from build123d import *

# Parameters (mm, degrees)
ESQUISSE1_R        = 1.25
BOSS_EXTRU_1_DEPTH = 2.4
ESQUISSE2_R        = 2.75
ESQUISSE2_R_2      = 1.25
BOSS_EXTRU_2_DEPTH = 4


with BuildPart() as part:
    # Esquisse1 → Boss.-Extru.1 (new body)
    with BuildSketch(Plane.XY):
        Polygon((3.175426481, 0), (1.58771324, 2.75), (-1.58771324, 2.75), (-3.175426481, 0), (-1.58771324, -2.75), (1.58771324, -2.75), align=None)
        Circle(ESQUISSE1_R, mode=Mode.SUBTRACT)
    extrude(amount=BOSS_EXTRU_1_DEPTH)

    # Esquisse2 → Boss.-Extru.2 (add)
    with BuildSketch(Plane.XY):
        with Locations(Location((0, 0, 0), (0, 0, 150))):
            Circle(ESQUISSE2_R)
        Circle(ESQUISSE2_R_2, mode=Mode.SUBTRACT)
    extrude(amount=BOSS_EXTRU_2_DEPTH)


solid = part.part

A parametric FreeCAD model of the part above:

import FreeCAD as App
import Part
import Sketcher
Q = App.Units.Quantity

doc = App.newDocument("Part")
params = doc.addObject("Spreadsheet::Sheet", "Params")
for row, (alias, value) in enumerate([
    ("sketch1_diameter", "2.5 mm"),
    ("pad1_length", "2.4 mm"),
    ("sketch2_diameter", "5.5 mm"),
    ("sketch2_diameter2", "2.5 mm"),
    ("pad2_length", "4 mm"),
], start=1):
    params.set(f"A{row}", alias)
    params.set(f"B{row}", "=" + value)
    params.setAlias(f"B{row}", alias)

body = doc.addObject("PartDesign::Body", "Body")

# Sketch on XY plane
sketch1 = body.newObject("Sketcher::SketchObject", "Sketch")
sketch1.AttachmentSupport = (doc.getObject("XY_Plane"), [""])
sketch1.MapMode = "FlatFace"
sketch1.addGeometry([
    Part.LineSegment(App.Vector(3.2, 0, 0), App.Vector(1.6, 2.8, 0)),  # 0
    Part.LineSegment(App.Vector(1.6, 2.8, 0), App.Vector(-1.6, 2.8, 0)),  # 1
    Part.LineSegment(App.Vector(-1.6, 2.8, 0), App.Vector(-3.2, 0, 0)),  # 2
    Part.LineSegment(App.Vector(-3.2, 0, 0), App.Vector(-1.6, -2.8, 0)),  # 3
    Part.LineSegment(App.Vector(-1.6, -2.8, 0), App.Vector(1.6, -2.8, 0)),  # 4
    Part.LineSegment(App.Vector(1.6, -2.8, 0), App.Vector(3.2, 0, 0)),  # 5
    Part.Circle(App.Vector(0, 0, 0), App.Vector(0, 0, 1), 1.2),  # 6
], False)
sketch1.addConstraint([
    Sketcher.Constraint("Coincident", 0, 2, 1, 1),
    Sketcher.Constraint("Coincident", 1, 2, 2, 1),
    Sketcher.Constraint("Coincident", 2, 2, 3, 1),
    Sketcher.Constraint("Coincident", 3, 2, 4, 1),
    Sketcher.Constraint("Coincident", 4, 2, 5, 1),
    Sketcher.Constraint("Coincident", 5, 2, 0, 1),
    Sketcher.Constraint("Horizontal", 1),
    Sketcher.Constraint("Horizontal", 4),
    Sketcher.Constraint("Coincident", 6, 3, -1, 1),
    Sketcher.Constraint("Symmetric", 0, 2, 3, 2, -1, 1),
    Sketcher.Constraint("Symmetric", 2, 2, 5, 2, -1, 1),
    Sketcher.Constraint("PointOnObject", 2, 2, -1),
    Sketcher.Constraint("Parallel", 2, 5),
    Sketcher.Constraint("Vertical", 1, 2, 3, 2),
    Sketcher.Constraint("Diameter", 6, Q("2.5 mm")),
    Sketcher.Constraint("Angle", 0, Q("120 deg")),
    Sketcher.Constraint("DistanceY", 3, 2, 1, 2, Q("5.5 mm")),
    Sketcher.Constraint("DistanceX", 1, 2, 1, 1, Q("3.175426 mm")),
])
sketch1.setExpression("Constraints[14]", "Params.sketch1_diameter")
pad1 = body.newObject("PartDesign::Pad", "Pad")
pad1.Profile = sketch1
pad1.setExpression("Length", "Params.pad1_length")

# Sketch on XY plane
sketch2 = body.newObject("Sketcher::SketchObject", "Sketch001")
sketch2.AttachmentSupport = (doc.getObject("XY_Plane"), [""])
sketch2.MapMode = "FlatFace"
sketch2.addGeometry([
    Part.Circle(App.Vector(0, 0, 0), App.Vector(0, 0, 1), 2.8),
    Part.Circle(App.Vector(0, 0, 0), App.Vector(0, 0, 1), 1.2),
], False)
sketch2.addConstraint([
    Sketcher.Constraint("Coincident", 0, 3, -1, 1),
    Sketcher.Constraint("Coincident", 1, 3, -1, 1),
    Sketcher.Constraint("Diameter", 0, Q("5.5 mm")),
    Sketcher.Constraint("Diameter", 1, Q("2.5 mm")),
])
sketch2.setExpression("Constraints[2]", "Params.sketch2_diameter")
sketch2.setExpression("Constraints[3]", "Params.sketch2_diameter2")
pad2 = body.newObject("PartDesign::Pad", "Pad001")
pad2.Profile = sketch2
pad2.setExpression("Length", "Params.pad2_length")

doc.recompute()
